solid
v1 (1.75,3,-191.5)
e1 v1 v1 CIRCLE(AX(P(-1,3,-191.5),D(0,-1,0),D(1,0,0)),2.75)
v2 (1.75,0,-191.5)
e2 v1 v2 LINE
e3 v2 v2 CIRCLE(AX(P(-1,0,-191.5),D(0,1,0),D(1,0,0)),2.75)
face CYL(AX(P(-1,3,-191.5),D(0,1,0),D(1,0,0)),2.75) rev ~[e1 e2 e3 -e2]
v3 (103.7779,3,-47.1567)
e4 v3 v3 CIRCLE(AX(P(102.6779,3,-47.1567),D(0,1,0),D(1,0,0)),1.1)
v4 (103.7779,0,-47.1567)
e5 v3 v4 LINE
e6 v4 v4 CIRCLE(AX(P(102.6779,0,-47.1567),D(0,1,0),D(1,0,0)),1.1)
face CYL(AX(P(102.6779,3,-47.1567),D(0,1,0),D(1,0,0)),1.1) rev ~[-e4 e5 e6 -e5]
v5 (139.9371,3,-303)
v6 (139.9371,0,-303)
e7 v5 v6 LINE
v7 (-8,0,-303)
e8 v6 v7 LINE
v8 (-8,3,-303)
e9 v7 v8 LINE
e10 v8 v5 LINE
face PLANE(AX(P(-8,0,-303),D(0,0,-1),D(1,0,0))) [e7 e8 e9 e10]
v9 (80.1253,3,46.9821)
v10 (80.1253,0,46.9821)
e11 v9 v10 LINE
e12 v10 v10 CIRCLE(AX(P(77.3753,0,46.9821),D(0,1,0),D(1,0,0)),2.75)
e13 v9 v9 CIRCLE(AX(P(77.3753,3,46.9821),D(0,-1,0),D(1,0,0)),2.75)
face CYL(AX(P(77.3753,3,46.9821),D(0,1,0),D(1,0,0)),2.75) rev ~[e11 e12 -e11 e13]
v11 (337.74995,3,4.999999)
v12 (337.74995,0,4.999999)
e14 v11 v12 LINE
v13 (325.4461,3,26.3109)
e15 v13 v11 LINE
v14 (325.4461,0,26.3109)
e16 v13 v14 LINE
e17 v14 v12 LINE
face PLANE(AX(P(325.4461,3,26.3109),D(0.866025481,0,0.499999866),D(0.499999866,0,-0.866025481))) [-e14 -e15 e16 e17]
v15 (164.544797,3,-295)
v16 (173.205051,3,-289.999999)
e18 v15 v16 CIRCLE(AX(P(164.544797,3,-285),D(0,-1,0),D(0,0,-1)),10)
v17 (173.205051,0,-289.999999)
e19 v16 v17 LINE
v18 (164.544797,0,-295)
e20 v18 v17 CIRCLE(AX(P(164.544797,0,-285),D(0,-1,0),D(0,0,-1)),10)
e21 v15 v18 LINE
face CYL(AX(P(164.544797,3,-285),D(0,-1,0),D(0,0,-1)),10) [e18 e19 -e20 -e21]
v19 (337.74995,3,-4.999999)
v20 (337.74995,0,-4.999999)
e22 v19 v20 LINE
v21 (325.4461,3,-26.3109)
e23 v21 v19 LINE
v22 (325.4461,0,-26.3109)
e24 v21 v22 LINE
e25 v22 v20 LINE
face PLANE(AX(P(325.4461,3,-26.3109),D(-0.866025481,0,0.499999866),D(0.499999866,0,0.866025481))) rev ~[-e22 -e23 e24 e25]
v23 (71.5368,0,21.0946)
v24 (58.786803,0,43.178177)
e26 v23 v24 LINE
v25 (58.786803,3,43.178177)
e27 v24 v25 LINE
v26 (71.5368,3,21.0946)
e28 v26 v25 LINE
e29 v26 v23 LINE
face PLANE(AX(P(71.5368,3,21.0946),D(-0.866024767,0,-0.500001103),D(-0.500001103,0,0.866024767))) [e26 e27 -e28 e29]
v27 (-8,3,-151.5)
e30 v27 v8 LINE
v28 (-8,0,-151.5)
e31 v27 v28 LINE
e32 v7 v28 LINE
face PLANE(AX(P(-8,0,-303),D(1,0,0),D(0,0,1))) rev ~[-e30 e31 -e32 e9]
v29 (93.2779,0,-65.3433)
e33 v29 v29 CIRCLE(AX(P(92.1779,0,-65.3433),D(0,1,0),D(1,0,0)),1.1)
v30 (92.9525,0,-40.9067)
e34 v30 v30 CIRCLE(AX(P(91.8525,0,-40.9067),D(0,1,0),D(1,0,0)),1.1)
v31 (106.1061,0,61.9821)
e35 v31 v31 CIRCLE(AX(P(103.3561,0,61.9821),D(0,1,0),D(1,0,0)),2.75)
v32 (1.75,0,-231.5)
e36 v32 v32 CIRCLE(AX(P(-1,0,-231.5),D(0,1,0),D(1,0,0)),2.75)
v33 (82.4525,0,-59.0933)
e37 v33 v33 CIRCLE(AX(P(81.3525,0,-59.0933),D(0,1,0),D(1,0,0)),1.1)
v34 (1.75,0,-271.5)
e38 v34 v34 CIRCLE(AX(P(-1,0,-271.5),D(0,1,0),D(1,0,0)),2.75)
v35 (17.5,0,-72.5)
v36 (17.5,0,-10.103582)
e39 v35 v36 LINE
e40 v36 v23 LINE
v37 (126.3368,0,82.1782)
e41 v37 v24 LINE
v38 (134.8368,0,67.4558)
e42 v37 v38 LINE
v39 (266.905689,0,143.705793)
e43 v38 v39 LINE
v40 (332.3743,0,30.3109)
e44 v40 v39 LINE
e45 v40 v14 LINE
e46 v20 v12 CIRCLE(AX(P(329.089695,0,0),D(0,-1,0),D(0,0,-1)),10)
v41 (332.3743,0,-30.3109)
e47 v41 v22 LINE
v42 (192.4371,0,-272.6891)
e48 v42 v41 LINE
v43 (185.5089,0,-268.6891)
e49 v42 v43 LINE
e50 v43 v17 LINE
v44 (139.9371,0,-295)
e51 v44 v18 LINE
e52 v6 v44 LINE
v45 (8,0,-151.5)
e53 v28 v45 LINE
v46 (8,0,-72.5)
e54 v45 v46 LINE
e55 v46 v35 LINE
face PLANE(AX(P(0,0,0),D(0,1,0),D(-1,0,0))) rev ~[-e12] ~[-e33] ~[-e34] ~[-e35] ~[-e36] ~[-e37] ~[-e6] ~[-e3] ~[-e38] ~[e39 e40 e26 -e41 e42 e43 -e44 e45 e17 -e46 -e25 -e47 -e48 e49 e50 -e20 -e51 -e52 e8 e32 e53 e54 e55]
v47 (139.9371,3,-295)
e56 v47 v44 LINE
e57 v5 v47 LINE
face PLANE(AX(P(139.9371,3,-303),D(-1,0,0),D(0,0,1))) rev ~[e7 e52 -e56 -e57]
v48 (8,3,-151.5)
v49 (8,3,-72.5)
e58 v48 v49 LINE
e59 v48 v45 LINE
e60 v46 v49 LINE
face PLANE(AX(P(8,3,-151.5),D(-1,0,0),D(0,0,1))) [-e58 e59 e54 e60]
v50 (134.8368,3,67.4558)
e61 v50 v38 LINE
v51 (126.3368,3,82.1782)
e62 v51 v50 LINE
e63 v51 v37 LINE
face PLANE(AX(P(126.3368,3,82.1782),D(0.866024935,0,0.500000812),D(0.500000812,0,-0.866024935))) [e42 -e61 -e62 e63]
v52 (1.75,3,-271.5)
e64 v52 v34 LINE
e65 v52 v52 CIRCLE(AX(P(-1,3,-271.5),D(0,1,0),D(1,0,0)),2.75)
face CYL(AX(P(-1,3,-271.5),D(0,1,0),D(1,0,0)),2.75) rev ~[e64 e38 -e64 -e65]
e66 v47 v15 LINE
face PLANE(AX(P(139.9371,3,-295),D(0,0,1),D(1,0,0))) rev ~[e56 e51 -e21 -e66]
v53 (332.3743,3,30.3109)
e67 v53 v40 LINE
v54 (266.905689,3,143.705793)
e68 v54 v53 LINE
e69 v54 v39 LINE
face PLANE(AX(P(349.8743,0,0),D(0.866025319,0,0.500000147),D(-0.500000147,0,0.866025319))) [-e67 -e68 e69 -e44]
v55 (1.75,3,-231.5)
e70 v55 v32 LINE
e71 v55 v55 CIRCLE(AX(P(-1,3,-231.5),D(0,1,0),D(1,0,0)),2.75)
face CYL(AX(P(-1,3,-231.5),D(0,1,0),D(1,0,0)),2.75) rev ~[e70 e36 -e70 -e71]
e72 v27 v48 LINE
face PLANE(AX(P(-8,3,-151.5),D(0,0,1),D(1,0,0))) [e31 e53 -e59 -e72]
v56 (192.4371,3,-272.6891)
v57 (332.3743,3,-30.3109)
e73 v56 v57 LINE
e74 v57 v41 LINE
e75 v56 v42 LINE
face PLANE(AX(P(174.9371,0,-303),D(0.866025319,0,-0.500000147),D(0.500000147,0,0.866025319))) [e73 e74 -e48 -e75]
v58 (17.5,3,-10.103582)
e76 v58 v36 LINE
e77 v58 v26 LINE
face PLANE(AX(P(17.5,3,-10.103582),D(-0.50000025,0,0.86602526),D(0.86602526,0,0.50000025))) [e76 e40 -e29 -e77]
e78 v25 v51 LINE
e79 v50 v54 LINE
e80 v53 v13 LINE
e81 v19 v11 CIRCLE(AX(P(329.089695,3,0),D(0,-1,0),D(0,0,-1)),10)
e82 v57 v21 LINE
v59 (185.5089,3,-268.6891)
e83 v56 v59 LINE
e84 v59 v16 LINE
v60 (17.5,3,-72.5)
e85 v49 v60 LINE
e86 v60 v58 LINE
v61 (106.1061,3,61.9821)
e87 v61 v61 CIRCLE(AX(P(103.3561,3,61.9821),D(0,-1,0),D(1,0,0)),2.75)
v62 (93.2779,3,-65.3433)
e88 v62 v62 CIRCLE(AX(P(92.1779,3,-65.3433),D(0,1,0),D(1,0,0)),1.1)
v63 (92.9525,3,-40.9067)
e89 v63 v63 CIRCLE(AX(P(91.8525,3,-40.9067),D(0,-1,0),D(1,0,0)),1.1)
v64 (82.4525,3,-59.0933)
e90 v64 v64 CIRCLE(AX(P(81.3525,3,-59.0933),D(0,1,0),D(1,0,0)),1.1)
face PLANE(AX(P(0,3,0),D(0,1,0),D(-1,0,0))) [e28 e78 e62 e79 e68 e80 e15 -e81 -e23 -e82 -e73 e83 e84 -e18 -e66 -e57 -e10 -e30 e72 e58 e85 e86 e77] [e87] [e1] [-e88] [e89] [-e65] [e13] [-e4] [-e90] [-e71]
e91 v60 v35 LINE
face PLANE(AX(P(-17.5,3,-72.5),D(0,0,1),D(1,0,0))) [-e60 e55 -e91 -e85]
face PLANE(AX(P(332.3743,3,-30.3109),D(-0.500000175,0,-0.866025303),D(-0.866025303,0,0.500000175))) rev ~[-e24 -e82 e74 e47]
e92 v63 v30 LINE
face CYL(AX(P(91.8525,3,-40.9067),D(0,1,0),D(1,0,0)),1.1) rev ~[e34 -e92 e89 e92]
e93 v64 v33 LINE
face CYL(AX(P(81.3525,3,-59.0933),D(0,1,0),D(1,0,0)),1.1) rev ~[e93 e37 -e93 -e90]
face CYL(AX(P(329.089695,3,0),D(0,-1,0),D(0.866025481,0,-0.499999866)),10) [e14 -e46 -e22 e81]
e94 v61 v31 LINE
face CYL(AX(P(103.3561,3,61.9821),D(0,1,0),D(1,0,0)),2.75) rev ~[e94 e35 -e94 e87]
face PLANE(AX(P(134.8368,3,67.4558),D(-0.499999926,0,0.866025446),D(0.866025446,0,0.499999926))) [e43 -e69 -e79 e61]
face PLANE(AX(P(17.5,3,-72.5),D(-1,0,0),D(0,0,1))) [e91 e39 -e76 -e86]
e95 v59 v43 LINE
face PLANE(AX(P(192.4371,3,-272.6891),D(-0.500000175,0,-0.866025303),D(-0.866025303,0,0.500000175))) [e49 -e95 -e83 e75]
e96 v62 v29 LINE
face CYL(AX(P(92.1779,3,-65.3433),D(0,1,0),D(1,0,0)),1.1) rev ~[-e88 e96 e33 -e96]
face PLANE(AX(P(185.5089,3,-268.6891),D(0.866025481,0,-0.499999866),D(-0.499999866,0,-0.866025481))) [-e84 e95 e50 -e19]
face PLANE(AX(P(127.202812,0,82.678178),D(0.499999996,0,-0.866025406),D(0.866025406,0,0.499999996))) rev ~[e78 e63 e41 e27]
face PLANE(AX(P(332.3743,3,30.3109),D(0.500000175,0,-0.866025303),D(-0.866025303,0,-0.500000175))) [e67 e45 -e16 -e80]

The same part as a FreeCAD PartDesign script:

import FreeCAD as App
import Part
import Sketcher
Q = App.Units.Quantity


def edges_at(feature, points):
    """Names of the edges that pass closest to the given points."""
    edges = feature.Shape.Edges
    near = lambda p: min(range(len(edges)), key=lambda i: edges[i].distToShape(Part.Vertex(*p))[0])
    return sorted({f"Edge{near(p) + 1}" for p in points})


def add_polygon(sketch, points):
    """Adds a closed chain of lines whose ends are joined by coincident constraints."""
    first, n = sketch.GeometryCount, len(points)
    for a, b in zip(points, points[1:] + points[:1]):
        sketch.addGeometry(Part.LineSegment(App.Vector(*a, 0), App.Vector(*b, 0)), False)
    for i in range(n):
        sketch.addConstraint(Sketcher.Constraint("Coincident", first + i, 2, first + (i + 1) % n, 1))

doc = App.newDocument("Part")
body = doc.addObject("PartDesign::Body", "Body")

# Sketch on XZ plane
sketch1 = body.newObject("Sketcher::SketchObject", "Sketch")
sketch1.AttachmentSupport = (doc.getObject("XZ_Plane"), [""])
sketch1.MapMode = "FlatFace"
add_polygon(sketch1, [(-8, -303), (-8, 0), (-3.2, 5.54256), (-4, 6.9282), (258.4057, 158.4282), (349.8743, 0), (174.9371, -303)])  # lines 0-6
sketch1.addConstraint(Sketcher.Constraint("Vertical", 0))
sketch1.addConstraint(Sketcher.Constraint("Horizontal", 6))
sketch1.addConstraint(Sketcher.Constraint("PointOnObject", 0, 2, -1))
sketch1.addConstraint(Sketcher.Constraint("PointOnObject", 4, 2, -1))
sketch1.addConstraint(Sketcher.Constraint("Perpendicular", 2, 3))
sketch1.addConstraint(Sketcher.Constraint("Perpendicular", 3, 4))
sketch1.addConstraint(Sketcher.Constraint("DistanceY", 0, 1, 0, 2, Q("303 mm")))
sketch1.addConstraint(Sketcher.Constraint("Distance", 3, Q("303 mm")))
sketch1.addConstraint(Sketcher.Constraint("DistanceX", 0, 2, -1, 1, Q("8 mm")))
sketch1.addConstraint(Sketcher.Constraint("Angle", 2, Q("120 deg")))
sketch1.addConstraint(Sketcher.Constraint("Angle", 5, Q("-120 deg")))
sketch1.addConstraint(Sketcher.Constraint("DistanceX", 2, 2, -1, 1, Q("4 mm")))
sketch1.addConstraint(Sketcher.Constraint("Distance", 2, Q("1.6 mm")))
sketch1.addConstraint(Sketcher.Constraint("DistanceX", 6, 2, 6, 1, Q("182.937 mm")))
pad1 = body.newObject("PartDesign::Pad", "Pad")
pad1.Profile = sketch1
pad1.Length = 3
pad1.Reversed = True

# Sketch on XZ plane
sketch2 = body.newObject("Sketcher::SketchObject", "Sketch001")
sketch2.AttachmentSupport = (doc.getObject("XZ_Plane"), [""])
sketch2.MapMode = "FlatFace"
sketch2.AttachmentOffset = App.Placement(App.Vector(0, 0, -3), App.Rotation())
add_polygon(sketch2, [(8, -151.5), (-8, -151.5), (-8, 0), (8, 0)])  # lines 0-3
add_polygon(sketch2, [(134.8368, 67.4558), (126.336806, 82.178189), (258.4057, 158.4282), (266.9057, 143.7058)])  # lines 4-7
sketch2.addConstraint(Sketcher.Constraint("Horizontal", 0))
sketch2.addConstraint(Sketcher.Constraint("Vertical", 1))
sketch2.addConstraint(Sketcher.Constraint("Horizontal", 2))
sketch2.addConstraint(Sketcher.Constraint("Vertical", 3))
sketch2.addConstraint(Sketcher.Constraint("Symmetric", 1, 2, 2, 2, -1, 1))
sketch2.addConstraint(Sketcher.Constraint("Perpendicular", 4, 5))
sketch2.addConstraint(Sketcher.Constraint("Perpendicular", 5, 6))
sketch2.addConstraint(Sketcher.Constraint("Perpendicular", 6, 7))
sketch2.addConstraint(Sketcher.Constraint("DistanceX", 0, 2, 0, 1, Q("16 mm")))
sketch2.addConstraint(Sketcher.Constraint("Distance", 4, Q("17 mm")))
sketch2.addConstraint(Sketcher.Constraint("DistanceY", 1, 1, 1, 2, Q("151.5 mm")))
sketch2.addConstraint(Sketcher.Constraint("Distance", 5, Q("152.5 mm")))
sketch2.addConstraint(Sketcher.Constraint("Angle", 4, Q("120 deg")))
sketch2.addConstraint(Sketcher.Constraint("DistanceX", -1, 1, 4, 2, Q("126.3368 mm")))
sketch2.addConstraint(Sketcher.Constraint("DistanceY", -1, 1, 4, 2, Q("82.1782 mm")))
pocket1 = body.newObject("PartDesign::Pocket", "Pocket")
pocket1.Profile = sketch2
pocket1.Length = 3
pocket1.Reversed = True

# Sketch on XZ plane
sketch3 = body.newObject("Sketcher::SketchObject", "Sketch002")
sketch3.AttachmentSupport = (doc.getObject("XZ_Plane"), [""])
sketch3.MapMode = "FlatFace"
sketch3.AttachmentOffset = App.Placement(App.Vector(0, 0, -3), App.Rotation())
add_polygon(sketch3, [(139.9371, -295), (170.3183, -295), (185.5089, -268.6891), (192.43711, -272.689106), (174.9371, -303), (139.9371, -303)])  # lines 0-5
add_polygon(sketch3, [(349.8743, 0), (332.3743, -30.3109), (325.4461, -26.3109), (340.6367, 0), (325.4461, 26.3109), (332.3743, 30.3109)])  # lines 6-11
sketch3.addConstraint(Sketcher.Constraint("Horizontal", 0))
sketch3.addConstraint(Sketcher.Constraint("Horizontal", 4))
sketch3.addConstraint(Sketcher.Constraint("Vertical", 5))
sketch3.addConstraint(Sketcher.Constraint("Symmetric", 7, 2, 9, 2, -1))
sketch3.addConstraint(Sketcher.Constraint("Symmetric", 6, 2, 10, 2, -1))
sketch3.addConstraint(Sketcher.Constraint("PointOnObject", 8, 2, -1))
sketch3.addConstraint(Sketcher.Constraint("PointOnObject", 11, 2, -1))
sketch3.addConstraint(Sketcher.Constraint("Perpendicular", 1, 2))
sketch3.addConstraint(Sketcher.Constraint("Perpendicular", 2, 3))
sketch3.addConstraint(Sketcher.Constraint("Parallel", 3, 6))
sketch3.addConstraint(Sketcher.Constraint("Perpendicular", 6, 7))
sketch3.addConstraint(Sketcher.Constraint("Perpendicular", 7, 8))
sketch3.addConstraint(Sketcher.Constraint("Equal", 3, 6))
sketch3.addConstraint(Sketcher.Constraint("Equal", 2, 7))
sketch3.addConstraint(Sketcher.Constraint("Equal", 1, 8))
sketch3.addConstraint(Sketcher.Constraint("DistanceX", 4, 2, 4, 1, Q("35 mm")))
sketch3.addConstraint(Sketcher.Constraint("DistanceY", 5, 1, 5, 2, Q("8 mm")))
sketch3.addConstraint(Sketcher.Constraint("Angle", 3, Q("-120 deg")))
sketch3.addConstraint(Sketcher.Constraint("Distance", 3, Q("35 mm")))
sketch3.addConstraint(Sketcher.Constraint("DistanceY", 0, 2, -1, 1, Q("295 mm")))
sketch3.addConstraint(Sketcher.Constraint("DistanceX", -1, 1, 1, 2, Q("185.509 mm")))
sketch3.addConstraint(Sketcher.Constraint("DistanceX", -1, 1, 7, 2, Q("325.446 mm")))
pocket2 = body.newObject("PartDesign::Pocket", "Pocket001")
pocket2.Profile = sketch3
pocket2.Length = 3
pocket2.Reversed = True

# Sketch on XZ plane
sketch4 = body.newObject("Sketcher::SketchObject", "Sketch003")
sketch4.AttachmentSupport = (doc.getObject("XZ_Plane"), [""])
sketch4.MapMode = "FlatFace"
sketch4.AttachmentOffset = App.Placement(App.Vector(0, 0, -3), App.Rotation())
add_polygon(sketch4, [(-17.5, -30.310855), (-54.0368, -51.4054), (-71.5368, -21.0946), (-17.5, 10.103582), (-17.5, 72.5), (17.5, 72.5), (17.5, 30.310855), (54.0368, 51.4054), (71.5368, 21.0946), (17.5, -10.103582), (17.5, -72.5), (-17.5, -72.5)])  # lines 0-11
sketch4.addConstraint(Sketcher.Constraint("Vertical", 3))
sketch4.addConstraint(Sketcher.Constraint("Horizontal", 4))
sketch4.addConstraint(Sketcher.Constraint("Vertical", 5))
sketch4.addConstraint(Sketcher.Constraint("Vertical", 9))
sketch4.addConstraint(Sketcher.Constraint("Horizontal", 10))
sketch4.addConstraint(Sketcher.Constraint("Vertical", 11))
sketch4.addConstraint(Sketcher.Constraint("Symmetric", 0, 2, 6, 2, -1, 1))
sketch4.addConstraint(Sketcher.Constraint("Symmetric", 1, 2, 7, 2, -1, 1))
sketch4.addConstraint(Sketcher.Constraint("Symmetric", 2, 2, 8, 2, -1, 1))
sketch4.addConstraint(Sketcher.Constraint("Symmetric", 4, 2, 10, 2, -1, 1))
sketch4.addConstraint(Sketcher.Constraint("Perpendicular", 0, 1))
sketch4.addConstraint(Sketcher.Constraint("Perpendicular", 1, 2))
sketch4.addConstraint(Sketcher.Constraint("Parallel", 2, 6))
sketch4.addConstraint(Sketcher.Constraint("Vertical", 5, 2, 8, 2))
sketch4.addConstraint(Sketcher.Constraint("DistanceX", 4, 1, 4, 2, Q("35 mm")))
sketch4.addConstraint(Sketcher.Constraint("Angle", 2, Q("30 deg")))
sketch4.addConstraint(Sketcher.Constraint("Distance", 1, Q("35 mm")))
sketch4.addConstraint(Sketcher.Constraint("DistanceY", -1, 1, 3, 2, Q("72.5 mm")))
sketch4.addConstraint(Sketcher.Constraint("DistanceY", 1, 2, 6, 2, Q("72.5 mm")))
sketch4.addConstraint(Sketcher.Constraint("Distance", 0, Q("42.189 mm")))
pocket3 = body.newObject("PartDesign::Pocket", "Pocket002")
pocket3.Profile = sketch4
pocket3.Length = 3
pocket3.Reversed = True

# Sketch on XZ plane
sketch5 = body.newObject("Sketcher::SketchObject", "Sketch004")
sketch5.AttachmentSupport = (doc.getObject("XZ_Plane"), [""])
sketch5.MapMode = "FlatFace"
sketch5.AttachmentOffset = App.Placement(App.Vector(0, 0, -3), App.Rotation())
sketch5.addGeometry(Part.Circle(App.Vector(-1, -191.5, 0), App.Vector(0, 0, 1), 2.75), False)
sketch5.addGeometry(Part.Circle(App.Vector(-1, -231.5, 0), App.Vector(0, 0, 1), 2.75), False)
sketch5.addGeometry(Part.Circle(App.Vector(-1, -271.5, 0), App.Vector(0, 0, 1), 2.75), False)
sketch5.addGeometry(Part.Circle(App.Vector(103.3561, 61.9821, 0), App.Vector(0, 0, 1), 2.75), False)
sketch5.addGeometry(Part.Circle(App.Vector(77.3753, 46.9821, 0), App.Vector(0, 0, 1), 2.75), False)
sketch5.addConstraint(Sketcher.Constraint("Equal", 0, 1))
sketch5.addConstraint(Sketcher.Constraint("Equal", 1, 2))
sketch5.addConstraint(Sketcher.Constraint("Equal", 2, 3))
sketch5.addConstraint(Sketcher.Constraint("Equal", 3, 4))
sketch5.addConstraint(Sketcher.Constraint("Vertical", 0, 3, 1, 3))
sketch5.addConstraint(Sketcher.Constraint("Vertical", 1, 3, 2, 3))
sketch5.addConstraint(Sketcher.Constraint("Diameter", 0, Q("5.5 mm")))
sketch5.addConstraint(Sketcher.Constraint("DistanceX", 0, 3, -1, 1, Q("1 mm")))
sketch5.addConstraint(Sketcher.Constraint("DistanceY", 1, 3, 0, 3, Q("40 mm")))
sketch5.addConstraint(Sketcher.Constraint("DistanceY", 2, 3, 1, 3, Q("40 mm")))
sketch5.addConstraint(Sketcher.Constraint("DistanceY", 4, 3, 3, 3, Q("15 mm")))
sketch5.addConstraint(Sketcher.Constraint("DistanceY", 0, 3, -1, 1, Q("191.5 mm")))
sketch5.addConstraint(Sketcher.Constraint("DistanceX", -1, 1, 3, 3, Q("103.356 mm")))
sketch5.addConstraint(Sketcher.Constraint("DistanceY", -1, 1, 3, 3, Q("61.982 mm")))
sketch5.addConstraint(Sketcher.Constraint("DistanceX", -1, 1, 4, 3, Q("77.3753 mm")))
pocket4 = body.newObject("PartDesign::Pocket", "Pocket003")
pocket4.Profile = sketch5
pocket4.Length = 3
pocket4.Reversed = True

# Sketch on XZ plane
sketch6 = body.newObject("Sketcher::SketchObject", "Sketch005")
sketch6.AttachmentSupport = (doc.getObject("XZ_Plane"), [""])
sketch6.MapMode = "FlatFace"
sketch6.AttachmentOffset = App.Placement(App.Vector(0, 0, -3), App.Rotation())
sketch6.addGeometry(Part.Circle(App.Vector(91.8525, -40.9067, 0), App.Vector(0, 0, 1), 1.1), False)
sketch6.addGeometry(Part.Circle(App.Vector(81.3525, -59.0933, 0), App.Vector(0, 0, 1), 1.1), False)
sketch6.addGeometry(Part.Circle(App.Vector(102.6779, -47.1567, 0), App.Vector(0, 0, 1), 1.1), False)
sketch6.addGeometry(Part.Circle(App.Vector(92.1779, -65.3433, 0), App.Vector(0, 0, 1), 1.1), False)
sketch6.addConstraint(Sketcher.Constraint("Equal", 0, 1))
sketch6.addConstraint(Sketcher.Constraint("Equal", 1, 2))
sketch6.addConstraint(Sketcher.Constraint("Equal", 2, 3))
sketch6.addConstraint(Sketcher.Constraint("Diameter", 0, Q("2.2 mm")))
sketch6.addConstraint(Sketcher.Constraint("DistanceX", 1, 3, 0, 3, Q("10.5 mm")))
sketch6.addConstraint(Sketcher.Constraint("DistanceX", 3, 3, 2, 3, Q("10.5 mm")))
sketch6.addConstraint(Sketcher.Constraint("DistanceY", 2, 3, 0, 3, Q("6.25 mm")))
sketch6.addConstraint(Sketcher.Constraint("DistanceY", 3, 3, 1, 3, Q("6.25 mm")))
sketch6.addConstraint(Sketcher.Constraint("DistanceX", -1, 1, 2, 3, Q("102.678 mm")))
sketch6.addConstraint(Sketcher.Constraint("DistanceX", -1, 1, 0, 3, Q("91.8525 mm")))
sketch6.addConstraint(Sketcher.Constraint("DistanceY", 0, 3, -1, 1, Q("40.9067 mm")))
sketch6.addConstraint(Sketcher.Constraint("DistanceY", 1, 3, -1, 1, Q("59.0933 mm")))
pocket5 = body.newObject("PartDesign::Pocket", "Pocket004")
pocket5.Profile = sketch6
pocket5.Length = 5
pocket5.Reversed = True
doc.recompute()

fillet = body.newObject("PartDesign::Fillet", "Fillet")
fillet.Base = (pocket5, edges_at(pocket5, [(340.637, 1.5, 0), (170.318, 1.5, -295)]))
fillet.Radius = 10

doc.recompute()
